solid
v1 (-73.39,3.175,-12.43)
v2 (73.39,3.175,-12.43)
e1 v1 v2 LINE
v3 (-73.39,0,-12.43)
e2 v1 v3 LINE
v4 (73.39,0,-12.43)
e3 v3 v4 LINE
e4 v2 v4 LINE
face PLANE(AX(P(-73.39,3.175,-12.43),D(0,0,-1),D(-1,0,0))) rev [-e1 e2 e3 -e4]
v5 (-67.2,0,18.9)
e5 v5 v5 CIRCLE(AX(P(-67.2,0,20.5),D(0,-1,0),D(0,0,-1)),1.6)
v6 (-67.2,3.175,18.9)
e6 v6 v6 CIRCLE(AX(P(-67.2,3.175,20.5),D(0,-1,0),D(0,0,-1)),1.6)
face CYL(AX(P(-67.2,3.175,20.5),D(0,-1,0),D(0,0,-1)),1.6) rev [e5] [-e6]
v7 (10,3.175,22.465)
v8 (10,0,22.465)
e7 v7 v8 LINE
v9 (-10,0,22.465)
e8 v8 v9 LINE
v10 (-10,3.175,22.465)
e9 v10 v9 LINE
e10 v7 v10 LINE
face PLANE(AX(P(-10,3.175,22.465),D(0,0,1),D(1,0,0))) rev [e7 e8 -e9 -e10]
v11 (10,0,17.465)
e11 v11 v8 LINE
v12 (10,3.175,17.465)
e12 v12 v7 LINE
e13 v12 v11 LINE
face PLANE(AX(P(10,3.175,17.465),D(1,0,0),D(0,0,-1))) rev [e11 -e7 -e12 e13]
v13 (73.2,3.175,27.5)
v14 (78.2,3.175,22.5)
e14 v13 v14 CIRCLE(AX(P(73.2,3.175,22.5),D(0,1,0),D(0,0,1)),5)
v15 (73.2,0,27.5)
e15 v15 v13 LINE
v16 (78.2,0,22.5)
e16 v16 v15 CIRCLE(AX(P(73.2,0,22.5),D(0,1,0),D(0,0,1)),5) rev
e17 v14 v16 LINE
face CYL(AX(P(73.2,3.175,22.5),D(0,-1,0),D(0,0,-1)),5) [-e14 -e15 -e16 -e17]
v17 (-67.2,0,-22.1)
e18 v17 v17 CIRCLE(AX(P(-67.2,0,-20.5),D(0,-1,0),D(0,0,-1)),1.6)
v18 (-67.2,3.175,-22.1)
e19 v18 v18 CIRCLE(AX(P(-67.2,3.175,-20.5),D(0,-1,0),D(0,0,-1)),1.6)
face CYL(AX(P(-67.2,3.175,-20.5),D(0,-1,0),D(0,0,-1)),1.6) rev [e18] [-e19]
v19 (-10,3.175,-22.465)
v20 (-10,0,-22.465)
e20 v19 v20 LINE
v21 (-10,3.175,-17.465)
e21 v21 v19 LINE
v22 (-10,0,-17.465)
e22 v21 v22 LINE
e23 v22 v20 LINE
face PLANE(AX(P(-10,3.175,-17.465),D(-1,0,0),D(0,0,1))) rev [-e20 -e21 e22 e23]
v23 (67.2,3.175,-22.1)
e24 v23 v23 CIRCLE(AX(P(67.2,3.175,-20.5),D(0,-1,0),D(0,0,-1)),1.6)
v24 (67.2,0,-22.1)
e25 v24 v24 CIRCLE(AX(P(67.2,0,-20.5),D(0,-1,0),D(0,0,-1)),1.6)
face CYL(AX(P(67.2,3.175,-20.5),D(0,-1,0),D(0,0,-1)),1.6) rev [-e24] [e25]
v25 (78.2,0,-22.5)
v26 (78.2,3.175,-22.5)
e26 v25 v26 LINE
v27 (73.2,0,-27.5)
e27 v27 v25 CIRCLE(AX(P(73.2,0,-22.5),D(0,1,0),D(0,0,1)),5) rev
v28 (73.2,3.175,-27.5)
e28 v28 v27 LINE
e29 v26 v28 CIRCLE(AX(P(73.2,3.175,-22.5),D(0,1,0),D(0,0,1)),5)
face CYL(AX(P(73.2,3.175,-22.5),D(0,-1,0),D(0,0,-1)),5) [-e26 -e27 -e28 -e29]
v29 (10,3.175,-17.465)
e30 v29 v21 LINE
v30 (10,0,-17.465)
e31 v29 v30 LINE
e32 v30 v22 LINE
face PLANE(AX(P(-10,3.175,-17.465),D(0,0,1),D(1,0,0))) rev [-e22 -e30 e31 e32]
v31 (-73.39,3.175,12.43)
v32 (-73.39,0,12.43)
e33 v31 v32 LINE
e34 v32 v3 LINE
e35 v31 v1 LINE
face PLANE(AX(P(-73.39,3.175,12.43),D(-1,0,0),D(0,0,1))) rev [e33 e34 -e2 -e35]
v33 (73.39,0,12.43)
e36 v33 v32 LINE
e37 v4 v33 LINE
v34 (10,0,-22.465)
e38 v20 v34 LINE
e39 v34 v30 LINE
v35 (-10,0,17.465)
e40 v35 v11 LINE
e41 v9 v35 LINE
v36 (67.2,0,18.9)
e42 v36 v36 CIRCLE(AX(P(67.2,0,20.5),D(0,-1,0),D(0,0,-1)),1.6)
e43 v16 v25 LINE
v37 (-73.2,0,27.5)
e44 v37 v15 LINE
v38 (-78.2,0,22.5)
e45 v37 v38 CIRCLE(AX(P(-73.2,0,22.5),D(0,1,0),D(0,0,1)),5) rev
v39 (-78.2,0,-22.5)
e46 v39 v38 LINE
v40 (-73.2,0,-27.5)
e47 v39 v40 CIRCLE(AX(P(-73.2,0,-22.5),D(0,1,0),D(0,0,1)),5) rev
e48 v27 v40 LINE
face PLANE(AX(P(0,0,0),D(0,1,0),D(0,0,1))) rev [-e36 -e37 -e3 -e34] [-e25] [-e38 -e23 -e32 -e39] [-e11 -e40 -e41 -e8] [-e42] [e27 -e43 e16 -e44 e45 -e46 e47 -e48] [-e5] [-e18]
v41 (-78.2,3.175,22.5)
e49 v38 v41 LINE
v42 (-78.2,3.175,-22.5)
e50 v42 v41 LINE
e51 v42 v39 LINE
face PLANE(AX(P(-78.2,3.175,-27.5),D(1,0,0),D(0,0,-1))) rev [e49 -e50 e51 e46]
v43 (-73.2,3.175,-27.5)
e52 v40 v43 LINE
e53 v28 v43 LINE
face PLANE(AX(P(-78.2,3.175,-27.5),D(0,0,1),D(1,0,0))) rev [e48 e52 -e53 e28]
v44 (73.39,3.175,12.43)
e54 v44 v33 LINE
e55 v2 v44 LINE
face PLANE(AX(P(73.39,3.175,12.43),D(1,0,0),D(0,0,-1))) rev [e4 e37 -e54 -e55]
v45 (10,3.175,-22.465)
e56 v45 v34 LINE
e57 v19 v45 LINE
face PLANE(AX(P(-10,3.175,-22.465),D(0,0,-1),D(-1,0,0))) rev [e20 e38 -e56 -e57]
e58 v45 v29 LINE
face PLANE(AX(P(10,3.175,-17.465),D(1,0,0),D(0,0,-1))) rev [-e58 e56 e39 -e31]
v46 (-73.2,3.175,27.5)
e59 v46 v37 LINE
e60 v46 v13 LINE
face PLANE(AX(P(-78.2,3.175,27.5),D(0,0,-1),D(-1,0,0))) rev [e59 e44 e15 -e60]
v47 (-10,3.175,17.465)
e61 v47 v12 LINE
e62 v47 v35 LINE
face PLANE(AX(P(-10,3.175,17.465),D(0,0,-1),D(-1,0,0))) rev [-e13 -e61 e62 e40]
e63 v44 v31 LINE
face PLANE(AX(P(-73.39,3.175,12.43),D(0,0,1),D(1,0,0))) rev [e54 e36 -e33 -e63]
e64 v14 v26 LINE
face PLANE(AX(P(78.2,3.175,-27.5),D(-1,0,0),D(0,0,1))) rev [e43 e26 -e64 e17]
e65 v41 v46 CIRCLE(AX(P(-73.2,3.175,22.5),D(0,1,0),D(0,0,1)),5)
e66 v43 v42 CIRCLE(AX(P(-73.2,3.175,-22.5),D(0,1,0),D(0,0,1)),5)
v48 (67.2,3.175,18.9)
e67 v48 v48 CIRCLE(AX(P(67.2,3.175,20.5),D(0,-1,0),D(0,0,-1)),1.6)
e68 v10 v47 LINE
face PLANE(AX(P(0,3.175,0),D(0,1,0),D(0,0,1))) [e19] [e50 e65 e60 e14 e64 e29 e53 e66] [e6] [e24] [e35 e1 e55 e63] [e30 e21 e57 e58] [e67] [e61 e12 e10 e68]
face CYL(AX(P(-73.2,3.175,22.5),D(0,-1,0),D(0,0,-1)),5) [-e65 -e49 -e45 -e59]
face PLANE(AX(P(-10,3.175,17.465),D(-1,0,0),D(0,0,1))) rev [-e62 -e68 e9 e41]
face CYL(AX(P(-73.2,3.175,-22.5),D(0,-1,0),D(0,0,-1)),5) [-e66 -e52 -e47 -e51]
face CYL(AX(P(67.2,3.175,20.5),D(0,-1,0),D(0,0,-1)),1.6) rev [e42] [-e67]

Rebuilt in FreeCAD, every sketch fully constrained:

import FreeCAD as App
import Part
import Sketcher


def edges_at(feature, points):
    """Names of the edges that pass closest to the given points."""
    edges = feature.Shape.Edges
    near = lambda p: min(range(len(edges)), key=lambda i: edges[i].distToShape(Part.Vertex(*p))[0])
    return sorted({f"Edge{near(p) + 1}" for p in points})

doc = App.newDocument("Part")
body = doc.addObject("PartDesign::Body", "Body")

sketch1 = doc.addObject("Sketcher::SketchObject", "Sketch")
body.addObject(sketch1)
sketch1.AttachmentSupport = (doc.XZ_Plane, [""])
sketch1.MapMode = "FlatFace"
sketch1.addGeometry([
    Part.LineSegment(App.Vector(-78, -28, 0), App.Vector(-78, 28, 0)),
    Part.LineSegment(App.Vector(-78, 28, 0), App.Vector(78, 28, 0)),
    Part.LineSegment(App.Vector(78, 28, 0), App.Vector(78, -28, 0)),
    Part.LineSegment(App.Vector(78, -28, 0), App.Vector(-78, -28, 0)),
], False)
sketch1.addConstraint([
    Sketcher.Constraint("Coincident", 0, 2, 1, 1),
    Sketcher.Constraint("Coincident", 1, 2, 2, 1),
    Sketcher.Constraint("Coincident", 2, 2, 3, 1),
    Sketcher.Constraint("Coincident", 3, 2, 0, 1),
    Sketcher.Constraint("Vertical", 0),
    Sketcher.Constraint("Horizontal", 1),
    Sketcher.Constraint("Vertical", 2),
    Sketcher.Constraint("Horizontal", 3),
    Sketcher.Constraint("Symmetric", 0, 2, 2, 2, -1, 1),
    Sketcher.Constraint("DistanceY", 0, 1, 0, 2, 55.0),
    Sketcher.Constraint("DistanceX", 1, 1, 1, 2, 156.4),
])
pad1 = doc.addObject("PartDesign::Pad", "Pad")
body.addObject(pad1)
pad1.Profile = sketch1
pad1.Length = 3.175
pad1.Reversed = True

sketch2 = doc.addObject("Sketcher::SketchObject", "Sketch001")
body.addObject(sketch2)
sketch2.AttachmentSupport = (doc.XZ_Plane, [""])
sketch2.MapMode = "FlatFace"
sketch2.addGeometry([
    Part.Circle(App.Vector(67.2, 20.5, 0), App.Vector(0, 0, 1), 1.6),
    Part.Circle(App.Vector(67.2, -20.5, 0), App.Vector(0, 0, 1), 1.6),
    Part.Circle(App.Vector(-67.2, -20.5, 0), App.Vector(0, 0, 1), 1.6),
    Part.Circle(App.Vector(-67.2, 20.5, 0), App.Vector(0, 0, 1), 1.6),
], False)
sketch2.addConstraint([
    Sketcher.Constraint("Equal", 0, 1),
    Sketcher.Constraint("Equal", 1, 2),
    Sketcher.Constraint("Equal", 2, 3),
    Sketcher.Constraint("Symmetric", 0, 3, 2, 3, -1, 1),
    Sketcher.Constraint("Symmetric", 1, 3, 3, 3, -1, 1),
    Sketcher.Constraint("Symmetric", 1, 3, 2, 3, -2),
    Sketcher.Constraint("Diameter", 0, 3.2),
    Sketcher.Constraint("DistanceY", 1, 3, 0, 3, 41.0),
    Sketcher.Constraint("DistanceX", -1, 1, 0, 3, 67.2),
])
pocket1 = doc.addObject("PartDesign::Pocket", "Pocket")
body.addObject(pocket1)
pocket1.Profile = sketch2
pocket1.Type = "ThroughAll"

sketch3 = doc.addObject("Sketcher::SketchObject", "Sketch002")
body.addObject(sketch3)
sketch3.AttachmentSupport = (doc.XZ_Plane, [""])
sketch3.MapMode = "FlatFace"
sketch3.addGeometry([
    Part.LineSegment(App.Vector(-73, 12, 0), App.Vector(-73, -12, 0)),
    Part.LineSegment(App.Vector(-73, -12, 0), App.Vector(73, -12, 0)),
    Part.LineSegment(App.Vector(73, -12, 0), App.Vector(73, 12, 0)),
    Part.LineSegment(App.Vector(73, 12, 0), App.Vector(-73, 12, 0)),
], False)
sketch3.addConstraint([
    Sketcher.Constraint("Coincident", 0, 2, 1, 1),
    Sketcher.Constraint("Coincident", 1, 2, 2, 1),
    Sketcher.Constraint("Coincident", 2, 2, 3, 1),
    Sketcher.Constraint("Coincident", 3, 2, 0, 1),
    Sketcher.Constraint("Vertical", 0),
    Sketcher.Constraint("Horizontal", 1),
    Sketcher.Constraint("Vertical", 2),
    Sketcher.Constraint("Horizontal", 3),
    Sketcher.Constraint("Symmetric", 0, 2, 2, 2, -1, 1),
    Sketcher.Constraint("DistanceX", 1, 1, 1, 2, 146.78),
    Sketcher.Constraint("DistanceY", 0, 2, 0, 1, 24.86),
])
pocket2 = doc.addObject("PartDesign::Pocket", "Pocket001")
body.addObject(pocket2)
pocket2.Profile = sketch3
pocket2.Length = 3.175

sketch4 = doc.addObject("Sketcher::SketchObject", "Sketch003")
body.addObject(sketch4)
sketch4.AttachmentSupport = (doc.XZ_Plane, [""])
sketch4.MapMode = "FlatFace"
sketch4.addGeometry([
    Part.LineSegment(App.Vector(10, 17, 0), App.Vector(10, 22, 0)),
    Part.LineSegment(App.Vector(10, 22, 0), App.Vector(-10, 22, 0)),
    Part.LineSegment(App.Vector(-10, 22, 0), App.Vector(-10, 17, 0)),
    Part.LineSegment(App.Vector(-10, 17, 0), App.Vector(10, 17, 0)),
    Part.LineSegment(App.Vector(10, -22, 0), App.Vector(10, -17, 0)),
    Part.LineSegment(App.Vector(10, -17, 0), App.Vector(-10, -17, 0)),
    Part.LineSegment(App.Vector(-10, -17, 0), App.Vector(-10, -22, 0)),
    Part.LineSegment(App.Vector(-10, -22, 0), App.Vector(10, -22, 0)),
], False)
sketch4.addConstraint([
    Sketcher.Constraint("Coincident", 0, 2, 1, 1),
    Sketcher.Constraint("Coincident", 1, 2, 2, 1),
    Sketcher.Constraint("Coincident", 2, 2, 3, 1),
    Sketcher.Constraint("Coincident", 3, 2, 0, 1),
    Sketcher.Constraint("Coincident", 4, 2, 5, 1),
    Sketcher.Constraint("Coincident", 5, 2, 6, 1),
    Sketcher.Constraint("Coincident", 6, 2, 7, 1),
    Sketcher.Constraint("Coincident", 7, 2, 4, 1),
    Sketcher.Constraint("Vertical", 0),
    Sketcher.Constraint("Horizontal", 1),
    Sketcher.Constraint("Vertical", 2),
    Sketcher.Constraint("Horizontal", 3),
    Sketcher.Constraint("Vertical", 4),
    Sketcher.Constraint("Horizontal", 5),
    Sketcher.Constraint("Vertical", 6),
    Sketcher.Constraint("Horizontal", 7),
    Sketcher.Constraint("Symmetric", 2, 2, 4, 2, -1, 1),
    Sketcher.Constraint("Symmetric", 0, 2, 6, 2, -1, 1),
    Sketcher.Constraint("Vertical", 3, 2, 4, 2),
    Sketcher.Constraint("DistanceX", 1, 2, 1, 1, 20.0),
    Sketcher.Constraint("DistanceY", 0, 1, 0, 2, 5.0),
    Sketcher.Constraint("DistanceY", 4, 2, 3, 2, 34.93),
])
pocket3 = doc.addObject("PartDesign::Pocket", "Pocket002")
body.addObject(pocket3)
pocket3.Profile = sketch4
pocket3.Type = "ThroughAll"
doc.recompute()

fillet = doc.addObject("PartDesign::Fillet", "Fillet")
body.addObject(fillet)
fillet.Base = (pocket3, edges_at(pocket3, [
    (78.2, 1.587, 27.5),
    (-78.2, 1.587, 27.5),
    (-78.2, 1.587, -27.5),
    (78.2, 1.587, -27.5),
]))
fillet.Radius = 5

doc.recompute()
